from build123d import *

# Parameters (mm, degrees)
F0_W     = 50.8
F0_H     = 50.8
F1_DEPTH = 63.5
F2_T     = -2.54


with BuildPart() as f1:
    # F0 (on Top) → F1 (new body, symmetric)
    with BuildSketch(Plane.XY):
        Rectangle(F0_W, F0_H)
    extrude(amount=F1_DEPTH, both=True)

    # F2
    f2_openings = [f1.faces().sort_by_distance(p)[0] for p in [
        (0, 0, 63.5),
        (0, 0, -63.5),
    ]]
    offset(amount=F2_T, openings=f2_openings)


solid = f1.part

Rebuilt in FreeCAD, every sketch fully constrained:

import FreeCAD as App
import Part
import Sketcher
from FreeCAD import Vector
Q = App.Units.Quantity


def faces_at(feature, points):
    """Names of the faces that lie closest to the given points."""
    faces = feature.Shape.Faces
    near = lambda p: min(range(len(faces)), key=lambda i: faces[i].distToShape(Part.Vertex(*p))[0])
    return sorted({f"Face{near(p) + 1}" for p in points})

doc = App.newDocument("Part")
params = doc.addObject("Spreadsheet::Sheet", "Params")
for row, (alias, value) in enumerate([
    ("sketch1_width", "2 in"),
    ("pad1_length", "5 in"),
    ("thickness_wall", "0.1 in"),
], start=1):
    params.set(f"A{row}", alias)
    params.set(f"B{row}", "=" + value)
    params.setAlias(f"B{row}", alias)

body = doc.addObject("PartDesign::Body", "Body")

sketch1 = body.newObject("Sketcher::SketchObject", "Sketch")
sketch1.AttachmentSupport = (doc.getObject("XY_Plane"), [""])
sketch1.MapMode = "FlatFace"
sketch1.addGeometry([
    Part.LineSegment(Vector(-25, 25, 0), Vector(-25, -25, 0)),
    Part.LineSegment(Vector(-25, -25, 0), Vector(25, -25, 0)),
    Part.LineSegment(Vector(25, -25, 0), Vector(25, 25, 0)),
    Part.LineSegment(Vector(25, 25, 0), Vector(-25, 25, 0)),
], False)
sketch1.addConstraint([
    Sketcher.Constraint("Coincident", 0, 2, 1, 1),
    Sketcher.Constraint("Coincident", 1, 2, 2, 1),
    Sketcher.Constraint("Coincident", 2, 2, 3, 1),
    Sketcher.Constraint("Coincident", 3, 2, 0, 1),
    Sketcher.Constraint("Vertical", 0),
    Sketcher.Constraint("Horizontal", 1),
    Sketcher.Constraint("Vertical", 2),
    Sketcher.Constraint("Horizontal", 3),
    Sketcher.Constraint("Symmetric", 0, 2, 2, 2, -1, 1),
    Sketcher.Constraint("Equal", 3, 0),
    Sketcher.Constraint("DistanceX", 1, 1, 1, 2, Q("2 in")),
])
sketch1.setExpression("Constraints[10]", "Params.sketch1_width")
pad1 = body.newObject("PartDesign::Pad", "Pad")
pad1.Profile = sketch1
pad1.setExpression("Length", "Params.pad1_length")
pad1.Midplane = True
doc.recompute()

thickness = body.newObject("PartDesign::Thickness", "Thickness")
thickness.Base = (pad1, faces_at(pad1, [(0, 0, 63.5), (0, 0, -63.5)]))
thickness.setExpression("Value", "Params.thickness_wall")
thickness.Reversed = True
thickness.Join = "Arc"

doc.recompute()
